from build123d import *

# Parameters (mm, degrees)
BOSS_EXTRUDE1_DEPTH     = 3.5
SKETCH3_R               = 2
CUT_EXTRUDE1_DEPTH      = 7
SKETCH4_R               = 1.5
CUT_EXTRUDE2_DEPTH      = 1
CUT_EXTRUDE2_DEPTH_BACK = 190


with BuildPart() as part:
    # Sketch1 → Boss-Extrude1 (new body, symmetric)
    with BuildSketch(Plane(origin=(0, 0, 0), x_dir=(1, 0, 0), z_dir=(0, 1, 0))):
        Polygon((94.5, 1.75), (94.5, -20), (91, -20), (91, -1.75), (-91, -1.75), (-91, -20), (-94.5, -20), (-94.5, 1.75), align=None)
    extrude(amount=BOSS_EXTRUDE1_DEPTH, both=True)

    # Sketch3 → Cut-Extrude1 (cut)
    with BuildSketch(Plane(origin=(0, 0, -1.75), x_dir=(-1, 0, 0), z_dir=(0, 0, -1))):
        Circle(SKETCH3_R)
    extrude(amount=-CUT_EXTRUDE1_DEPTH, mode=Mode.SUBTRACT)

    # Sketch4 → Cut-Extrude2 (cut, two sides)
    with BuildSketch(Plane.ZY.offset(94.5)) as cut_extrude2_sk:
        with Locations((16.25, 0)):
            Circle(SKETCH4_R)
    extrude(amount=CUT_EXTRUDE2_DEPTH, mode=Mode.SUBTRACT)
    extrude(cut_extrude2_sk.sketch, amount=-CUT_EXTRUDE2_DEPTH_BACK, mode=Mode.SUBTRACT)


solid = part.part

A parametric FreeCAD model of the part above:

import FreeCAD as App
import Part
import Sketcher
from FreeCAD import Vector
Q = App.Units.Quantity


def add_polygon(sketch, points):
    """Adds a closed chain of lines whose ends are joined by coincident constraints."""
    first, n = sketch.GeometryCount, len(points)
    for a, b in zip(points, points[1:] + points[:1]):
        sketch.addGeometry(Part.LineSegment(App.Vector(*a, 0), App.Vector(*b, 0)), False)
    for i in range(n):
        sketch.addConstraint(Sketcher.Constraint("Coincident", first + i, 2, first + (i + 1) % n, 1))

doc = App.newDocument("Part")
params = doc.addObject("Spreadsheet::Sheet", "Params")
for row, (alias, value) in enumerate([
    ("sketch1_width", "189 mm"),
    ("sketch1_width2", "182 mm"),
    ("sketch1_height", "21.75 mm"),
    ("sketch1_height2", "18.25 mm"),
    ("pad1_length", "7 mm"),
    ("sketch2_diameter", "4 mm"),
    ("pocket1_length", "7 mm"),
    ("sketch3_diameter", "3 mm"),
], start=1):
    params.set(f"A{row}", alias)
    params.set(f"B{row}", "=" + value)
    params.setAlias(f"B{row}", alias)

body = doc.addObject("PartDesign::Body", "Body")

sketch1 = doc.addObject("Sketcher::SketchObject", "Sketch")
body.addObject(sketch1)
sketch1.AttachmentSupport = (doc.XZ_Plane, [""])
sketch1.MapMode = "FlatFace"
add_polygon(sketch1, [(94.5, 20), (94.5, -1.75), (-94.5, -1.75), (-94.5, 20), (-91, 20), (-91, 1.75), (91, 1.75), (91, 20)])
sketch1.addConstraint([
    Sketcher.Constraint("Vertical", 0),
    Sketcher.Constraint("Horizontal", 1),
    Sketcher.Constraint("Vertical", 2),
    Sketcher.Constraint("Horizontal", 3),
    Sketcher.Constraint("Vertical", 4),
    Sketcher.Constraint("Horizontal", 5),
    Sketcher.Constraint("Vertical", 6),
    Sketcher.Constraint("Horizontal", 7),
    Sketcher.Constraint("Symmetric", 3, 2, 6, 2, -2),
    Sketcher.Constraint("Equal", 3, 7),
    Sketcher.Constraint("DistanceX", 1, 2, 1, 1, Q("189 mm")),
    Sketcher.Constraint("DistanceX", 5, 1, 5, 2, Q("182 mm")),
    Sketcher.Constraint("DistanceY", -1, 1, 2, 2, Q("20 mm")),
    Sketcher.Constraint("DistanceY", 0, 2, 0, 1, Q("21.75 mm")),
    Sketcher.Constraint("DistanceY", 4, 2, 4, 1, Q("18.25 mm")),
])
sketch1.setExpression("Constraints[18]", "Params.sketch1_width")
sketch1.setExpression("Constraints[19]", "Params.sketch1_width2")
sketch1.setExpression("Constraints[21]", "Params.sketch1_height")
sketch1.setExpression("Constraints[22]", "Params.sketch1_height2")
pad1 = doc.addObject("PartDesign::Pad", "Pad")
body.addObject(pad1)
pad1.Profile = sketch1
pad1.setExpression("Length", "Params.pad1_length")
pad1.Midplane = True

sketch2 = doc.addObject("Sketcher::SketchObject", "Sketch001")
body.addObject(sketch2)
sketch2.AttachmentSupport = (doc.XY_Plane, [""])
sketch2.MapMode = "FlatFace"
sketch2.AttachmentOffset = App.Placement(Vector(0, 0, -1.75), App.Rotation())
sketch2.addGeometry(Part.Circle(Vector(0, 0, 0), Vector(0, 0, 1), 2), False)
sketch2.addConstraint([
    Sketcher.Constraint("Coincident", 0, 3, -1, 1),
    Sketcher.Constraint("Diameter", 0, Q("4 mm")),
])
sketch2.setExpression("Constraints[1]", "Params.sketch2_diameter")
pocket1 = doc.addObject("PartDesign::Pocket", "Pocket")
body.addObject(pocket1)
pocket1.Profile = sketch2
pocket1.setExpression("Length", "Params.pocket1_length")
pocket1.Reversed = True

sketch3 = doc.addObject("Sketcher::SketchObject", "Sketch002")
body.addObject(sketch3)
sketch3.AttachmentSupport = (doc.YZ_Plane, [""])
sketch3.MapMode = "FlatFace"
sketch3.AttachmentOffset = App.Placement(Vector(0, 0, -94.5), App.Rotation())
sketch3.addGeometry(Part.Circle(Vector(0, 16.25, 0), Vector(0, 0, 1), 1.5), False)
sketch3.addConstraint([
    Sketcher.Constraint("PointOnObject", 0, 3, -2),
    Sketcher.Constraint("Diameter", 0, Q("3 mm")),
    Sketcher.Constraint("DistanceY", -1, 1, 0, 3, Q("16.25 mm")),
])
sketch3.setExpression("Constraints[1]", "Params.sketch3_diameter")
pocket2 = doc.addObject("PartDesign::Pocket", "Pocket001")
body.addObject(pocket2)
pocket2.Profile = sketch3
pocket2.Type = "ThroughAll"
pocket2.Midplane = True

doc.recompute()
